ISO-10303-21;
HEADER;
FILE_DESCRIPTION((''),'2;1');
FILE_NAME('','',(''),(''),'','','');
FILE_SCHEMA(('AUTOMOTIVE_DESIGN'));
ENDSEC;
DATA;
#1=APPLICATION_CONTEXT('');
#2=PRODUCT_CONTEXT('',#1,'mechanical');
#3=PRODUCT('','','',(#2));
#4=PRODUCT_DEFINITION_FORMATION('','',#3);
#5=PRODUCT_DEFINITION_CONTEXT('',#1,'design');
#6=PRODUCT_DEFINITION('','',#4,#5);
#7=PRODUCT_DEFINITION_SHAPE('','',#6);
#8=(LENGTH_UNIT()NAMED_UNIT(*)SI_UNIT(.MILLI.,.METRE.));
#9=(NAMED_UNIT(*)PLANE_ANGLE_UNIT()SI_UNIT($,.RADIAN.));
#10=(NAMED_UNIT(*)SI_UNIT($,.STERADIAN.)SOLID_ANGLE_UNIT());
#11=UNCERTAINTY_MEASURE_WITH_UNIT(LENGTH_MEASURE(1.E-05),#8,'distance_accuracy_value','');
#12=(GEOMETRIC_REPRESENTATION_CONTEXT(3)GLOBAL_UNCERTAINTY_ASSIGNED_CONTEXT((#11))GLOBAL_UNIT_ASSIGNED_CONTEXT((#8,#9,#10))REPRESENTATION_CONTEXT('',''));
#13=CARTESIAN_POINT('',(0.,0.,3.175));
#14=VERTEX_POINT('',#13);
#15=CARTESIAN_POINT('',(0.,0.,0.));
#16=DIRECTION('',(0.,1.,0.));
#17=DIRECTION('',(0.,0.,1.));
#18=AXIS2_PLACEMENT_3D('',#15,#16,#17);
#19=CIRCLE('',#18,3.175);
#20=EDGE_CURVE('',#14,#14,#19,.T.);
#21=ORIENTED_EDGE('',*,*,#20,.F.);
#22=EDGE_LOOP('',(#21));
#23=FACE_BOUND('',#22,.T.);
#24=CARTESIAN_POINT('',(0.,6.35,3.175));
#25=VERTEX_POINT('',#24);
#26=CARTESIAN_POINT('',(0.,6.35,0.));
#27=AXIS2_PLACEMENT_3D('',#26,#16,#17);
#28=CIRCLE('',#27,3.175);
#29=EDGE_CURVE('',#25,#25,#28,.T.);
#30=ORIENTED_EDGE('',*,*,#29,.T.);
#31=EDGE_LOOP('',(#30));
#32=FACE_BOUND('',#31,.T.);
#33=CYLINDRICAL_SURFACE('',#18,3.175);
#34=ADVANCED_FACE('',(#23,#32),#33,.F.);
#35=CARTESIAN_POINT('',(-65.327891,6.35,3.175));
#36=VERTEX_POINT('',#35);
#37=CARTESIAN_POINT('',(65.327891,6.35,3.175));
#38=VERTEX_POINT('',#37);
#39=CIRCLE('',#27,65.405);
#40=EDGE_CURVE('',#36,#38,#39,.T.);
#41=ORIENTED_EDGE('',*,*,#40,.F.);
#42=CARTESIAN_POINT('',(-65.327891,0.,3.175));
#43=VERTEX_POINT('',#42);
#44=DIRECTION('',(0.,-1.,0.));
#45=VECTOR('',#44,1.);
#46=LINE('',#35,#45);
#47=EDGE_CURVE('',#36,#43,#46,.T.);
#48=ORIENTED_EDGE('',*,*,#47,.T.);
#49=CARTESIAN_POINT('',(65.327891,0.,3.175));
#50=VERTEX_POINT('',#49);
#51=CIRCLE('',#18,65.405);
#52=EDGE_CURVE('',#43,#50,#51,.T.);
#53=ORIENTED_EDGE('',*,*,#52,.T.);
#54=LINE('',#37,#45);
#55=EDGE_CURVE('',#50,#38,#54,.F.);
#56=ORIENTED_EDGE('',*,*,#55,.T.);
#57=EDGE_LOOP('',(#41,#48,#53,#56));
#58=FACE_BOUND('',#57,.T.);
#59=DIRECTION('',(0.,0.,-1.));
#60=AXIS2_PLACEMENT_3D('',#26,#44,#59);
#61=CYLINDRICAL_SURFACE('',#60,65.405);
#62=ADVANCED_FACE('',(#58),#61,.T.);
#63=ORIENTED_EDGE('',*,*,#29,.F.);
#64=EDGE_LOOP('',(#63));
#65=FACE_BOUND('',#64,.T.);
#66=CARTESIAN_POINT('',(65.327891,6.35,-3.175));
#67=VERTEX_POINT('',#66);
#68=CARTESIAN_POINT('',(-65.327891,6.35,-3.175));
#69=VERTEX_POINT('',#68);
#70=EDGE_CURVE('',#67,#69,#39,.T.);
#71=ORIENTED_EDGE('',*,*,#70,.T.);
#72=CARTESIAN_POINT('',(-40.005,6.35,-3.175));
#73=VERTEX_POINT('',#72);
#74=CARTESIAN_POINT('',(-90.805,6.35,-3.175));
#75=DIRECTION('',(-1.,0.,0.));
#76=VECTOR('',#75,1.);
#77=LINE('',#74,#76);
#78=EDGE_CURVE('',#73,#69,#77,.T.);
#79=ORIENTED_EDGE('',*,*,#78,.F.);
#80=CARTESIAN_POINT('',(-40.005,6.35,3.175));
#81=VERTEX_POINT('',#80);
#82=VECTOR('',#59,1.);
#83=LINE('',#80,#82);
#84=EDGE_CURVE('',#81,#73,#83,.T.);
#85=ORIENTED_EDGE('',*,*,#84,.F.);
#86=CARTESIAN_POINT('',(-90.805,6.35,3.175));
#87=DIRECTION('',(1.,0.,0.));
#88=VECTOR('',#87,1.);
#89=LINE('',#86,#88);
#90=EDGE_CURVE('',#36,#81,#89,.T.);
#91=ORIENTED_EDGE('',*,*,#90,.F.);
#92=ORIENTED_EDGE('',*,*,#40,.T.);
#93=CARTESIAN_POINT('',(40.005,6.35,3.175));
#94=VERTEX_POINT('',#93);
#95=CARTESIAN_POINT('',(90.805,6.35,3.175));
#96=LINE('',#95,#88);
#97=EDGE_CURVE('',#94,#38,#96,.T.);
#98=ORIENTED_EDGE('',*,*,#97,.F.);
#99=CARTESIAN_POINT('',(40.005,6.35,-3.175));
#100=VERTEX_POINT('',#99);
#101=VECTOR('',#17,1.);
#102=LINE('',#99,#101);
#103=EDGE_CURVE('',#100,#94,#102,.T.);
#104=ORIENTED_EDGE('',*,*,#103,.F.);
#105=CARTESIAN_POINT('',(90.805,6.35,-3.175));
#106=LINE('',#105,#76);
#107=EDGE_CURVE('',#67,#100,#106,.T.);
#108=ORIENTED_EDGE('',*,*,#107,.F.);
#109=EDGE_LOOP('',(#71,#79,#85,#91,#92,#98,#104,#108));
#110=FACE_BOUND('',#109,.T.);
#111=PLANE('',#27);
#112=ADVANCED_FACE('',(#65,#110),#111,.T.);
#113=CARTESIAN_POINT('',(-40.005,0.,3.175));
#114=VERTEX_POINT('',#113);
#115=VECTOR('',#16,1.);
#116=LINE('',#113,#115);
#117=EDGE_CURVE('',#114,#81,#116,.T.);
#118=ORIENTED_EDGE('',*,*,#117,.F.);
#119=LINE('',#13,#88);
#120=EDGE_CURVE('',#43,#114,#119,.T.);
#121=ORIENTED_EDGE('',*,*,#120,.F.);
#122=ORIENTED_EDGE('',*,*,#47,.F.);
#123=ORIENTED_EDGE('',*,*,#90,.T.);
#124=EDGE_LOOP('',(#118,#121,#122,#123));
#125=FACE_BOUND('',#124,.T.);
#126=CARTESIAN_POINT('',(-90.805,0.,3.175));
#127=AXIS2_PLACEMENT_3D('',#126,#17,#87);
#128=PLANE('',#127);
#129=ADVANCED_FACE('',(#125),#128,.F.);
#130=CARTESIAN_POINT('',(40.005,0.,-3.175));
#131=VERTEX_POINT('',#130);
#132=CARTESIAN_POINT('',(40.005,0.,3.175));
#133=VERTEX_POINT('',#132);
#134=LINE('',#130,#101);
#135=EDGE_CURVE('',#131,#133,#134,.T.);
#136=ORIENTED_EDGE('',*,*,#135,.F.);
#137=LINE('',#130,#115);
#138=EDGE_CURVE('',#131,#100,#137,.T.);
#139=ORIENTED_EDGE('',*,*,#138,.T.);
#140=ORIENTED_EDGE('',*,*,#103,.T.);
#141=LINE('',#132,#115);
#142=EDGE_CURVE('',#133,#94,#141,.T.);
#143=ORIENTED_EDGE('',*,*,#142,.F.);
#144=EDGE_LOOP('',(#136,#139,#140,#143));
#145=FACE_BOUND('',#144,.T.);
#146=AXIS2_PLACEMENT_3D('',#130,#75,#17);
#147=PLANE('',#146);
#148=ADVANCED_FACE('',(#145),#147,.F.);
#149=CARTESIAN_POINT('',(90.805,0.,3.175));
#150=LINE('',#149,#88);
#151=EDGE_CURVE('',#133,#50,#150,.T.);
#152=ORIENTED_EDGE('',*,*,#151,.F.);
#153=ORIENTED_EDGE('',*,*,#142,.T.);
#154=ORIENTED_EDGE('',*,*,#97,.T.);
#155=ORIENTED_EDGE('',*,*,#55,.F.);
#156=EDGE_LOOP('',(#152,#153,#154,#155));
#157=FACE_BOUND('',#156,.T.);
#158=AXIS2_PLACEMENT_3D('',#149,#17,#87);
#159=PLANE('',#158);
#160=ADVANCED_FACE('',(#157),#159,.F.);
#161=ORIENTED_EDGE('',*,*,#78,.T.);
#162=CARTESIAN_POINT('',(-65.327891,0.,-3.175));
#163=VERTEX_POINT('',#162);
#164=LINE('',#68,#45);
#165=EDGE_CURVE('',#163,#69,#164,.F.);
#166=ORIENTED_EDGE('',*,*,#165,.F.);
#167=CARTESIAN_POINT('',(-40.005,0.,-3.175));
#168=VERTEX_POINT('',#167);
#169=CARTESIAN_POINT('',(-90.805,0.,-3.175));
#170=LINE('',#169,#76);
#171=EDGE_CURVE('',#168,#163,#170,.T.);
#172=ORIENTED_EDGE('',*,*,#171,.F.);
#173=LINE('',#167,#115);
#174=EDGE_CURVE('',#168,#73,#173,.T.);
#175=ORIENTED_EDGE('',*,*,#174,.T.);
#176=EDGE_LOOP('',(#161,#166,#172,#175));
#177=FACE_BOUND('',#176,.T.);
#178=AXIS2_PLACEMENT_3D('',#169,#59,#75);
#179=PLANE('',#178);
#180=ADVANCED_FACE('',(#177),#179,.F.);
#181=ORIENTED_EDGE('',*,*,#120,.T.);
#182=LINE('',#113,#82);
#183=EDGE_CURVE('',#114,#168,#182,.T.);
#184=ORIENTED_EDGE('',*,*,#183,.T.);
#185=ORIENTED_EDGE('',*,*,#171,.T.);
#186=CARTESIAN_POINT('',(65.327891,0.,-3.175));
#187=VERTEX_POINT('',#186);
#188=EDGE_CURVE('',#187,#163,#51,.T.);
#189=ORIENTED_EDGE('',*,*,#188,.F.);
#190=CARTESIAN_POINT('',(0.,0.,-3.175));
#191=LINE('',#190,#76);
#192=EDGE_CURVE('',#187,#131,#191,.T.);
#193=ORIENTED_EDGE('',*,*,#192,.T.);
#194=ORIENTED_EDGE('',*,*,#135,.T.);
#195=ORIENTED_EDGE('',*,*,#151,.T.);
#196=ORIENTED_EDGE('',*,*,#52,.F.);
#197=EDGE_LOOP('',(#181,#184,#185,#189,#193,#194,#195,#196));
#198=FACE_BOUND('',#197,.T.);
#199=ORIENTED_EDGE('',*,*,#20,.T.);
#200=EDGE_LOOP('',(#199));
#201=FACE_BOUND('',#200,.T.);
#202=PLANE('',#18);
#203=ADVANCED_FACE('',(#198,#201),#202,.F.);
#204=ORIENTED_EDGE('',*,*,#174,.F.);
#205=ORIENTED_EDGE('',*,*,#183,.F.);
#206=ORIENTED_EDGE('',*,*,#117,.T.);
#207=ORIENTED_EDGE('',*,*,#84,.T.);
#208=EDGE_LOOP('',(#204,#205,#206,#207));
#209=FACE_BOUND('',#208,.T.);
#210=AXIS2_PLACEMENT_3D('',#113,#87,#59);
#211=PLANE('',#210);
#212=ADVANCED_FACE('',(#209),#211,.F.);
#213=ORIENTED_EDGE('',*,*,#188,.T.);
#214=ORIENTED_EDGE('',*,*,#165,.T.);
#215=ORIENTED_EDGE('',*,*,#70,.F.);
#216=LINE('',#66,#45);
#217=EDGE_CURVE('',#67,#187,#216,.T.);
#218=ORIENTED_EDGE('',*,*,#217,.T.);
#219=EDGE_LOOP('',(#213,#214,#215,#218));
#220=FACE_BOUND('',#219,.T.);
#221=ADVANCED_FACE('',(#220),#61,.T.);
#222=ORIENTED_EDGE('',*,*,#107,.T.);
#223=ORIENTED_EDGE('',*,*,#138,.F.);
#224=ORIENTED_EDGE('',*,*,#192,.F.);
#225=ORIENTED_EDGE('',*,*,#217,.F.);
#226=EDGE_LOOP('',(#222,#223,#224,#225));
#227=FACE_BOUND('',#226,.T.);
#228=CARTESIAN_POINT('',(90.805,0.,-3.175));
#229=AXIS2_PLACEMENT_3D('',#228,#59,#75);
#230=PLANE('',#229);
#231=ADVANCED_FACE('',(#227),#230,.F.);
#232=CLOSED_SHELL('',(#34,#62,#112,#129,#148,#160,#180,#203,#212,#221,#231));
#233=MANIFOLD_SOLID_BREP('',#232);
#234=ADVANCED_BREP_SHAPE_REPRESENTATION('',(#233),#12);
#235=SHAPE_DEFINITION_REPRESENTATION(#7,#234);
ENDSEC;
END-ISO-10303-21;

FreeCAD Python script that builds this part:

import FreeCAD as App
import Part
import Sketcher

V = App.Vector
Q = App.Units.Quantity

doc = App.newDocument("Part")
body = doc.addObject("PartDesign::Body", "Body")

sketch1 = body.newObject("Sketcher::SketchObject", "Sketch")
sketch1.AttachmentSupport = (doc.getObject("XZ_Plane"), [""])
sketch1.MapMode = "FlatFace"
sketch1.addGeometry(Part.Circle(V(0, 0, 0), V(0, 0, 1), 65.405), False)
sketch1.addConstraint([
    Sketcher.Constraint("Coincident", 0, 3, -1, 1),
    Sketcher.Constraint("Diameter", 0, Q("5.15 in")),
])
pad1 = body.newObject("PartDesign::Pad", "Pad")
pad1.Profile = sketch1
pad1.Length = Q("0.25 in")
pad1.Reversed = True

sketch2 = body.newObject("Sketcher::SketchObject", "Sketch001")
sketch2.AttachmentSupport = (doc.getObject("XZ_Plane"), [""])
sketch2.MapMode = "FlatFace"
sketch2.AttachmentOffset = App.Placement(V(0, 0, -0.25 * 25.4), App.Rotation())
sketch2.addGeometry([
    Part.LineSegment(V(-90.805, -3.175, 0), V(-90.805, 3.175, 0)),
    Part.LineSegment(V(-90.805, 3.175, 0), V(-40.005, 3.175, 0)),
    Part.LineSegment(V(-40.005, 3.175, 0), V(-40.005, -3.175, 0)),
    Part.LineSegment(V(-40.005, -3.175, 0), V(-90.805, -3.175, 0)),
    Part.LineSegment(V(40.005, -3.175, 0), V(40.005, 3.175, 0)),
    Part.LineSegment(V(40.005, 3.175, 0), V(90.805, 3.175, 0)),
    Part.LineSegment(V(90.805, 3.175, 0), V(90.805, -3.175, 0)),
    Part.LineSegment(V(90.805, -3.175, 0), V(40.005, -3.175, 0)),
], False)
sketch2.addConstraint([
    Sketcher.Constraint("Coincident", 0, 2, 1, 1),
    Sketcher.Constraint("Coincident", 1, 2, 2, 1),
    Sketcher.Constraint("Coincident", 2, 2, 3, 1),
    Sketcher.Constraint("Coincident", 3, 2, 0, 1),
    Sketcher.Constraint("Coincident", 4, 2, 5, 1),
    Sketcher.Constraint("Coincident", 5, 2, 6, 1),
    Sketcher.Constraint("Coincident", 6, 2, 7, 1),
    Sketcher.Constraint("Coincident", 7, 2, 4, 1),
    Sketcher.Constraint("Vertical", 0),
    Sketcher.Constraint("Horizontal", 1),
    Sketcher.Constraint("Vertical", 2),
    Sketcher.Constraint("Horizontal", 3),
    Sketcher.Constraint("Vertical", 4),
    Sketcher.Constraint("Horizontal", 5),
    Sketcher.Constraint("Vertical", 6),
    Sketcher.Constraint("Horizontal", 7),
    Sketcher.Constraint("Symmetric", 2, 2, 4, 2, -1, 1),
    Sketcher.Constraint("Symmetric", 0, 2, 6, 2, -1, 1),
    Sketcher.Constraint("Horizontal", 1, 2, 4, 2),
    Sketcher.Constraint("DistanceX", 1, 1, 1, 2, Q("2 in")),
    Sketcher.Constraint("DistanceY", 0, 1, 0, 2, Q("0.25 in")),
    Sketcher.Constraint("DistanceX", 1, 2, 4, 2, Q("3.15 in")),
])
pocket1 = body.newObject("PartDesign::Pocket", "Pocket")
pocket1.Profile = sketch2
pocket1.Length = Q("0.25 in")
pocket1.Reversed = True

sketch3 = body.newObject("Sketcher::SketchObject", "Sketch002")
sketch3.AttachmentSupport = (doc.getObject("XZ_Plane"), [""])
sketch3.MapMode = "FlatFace"
sketch3.AttachmentOffset = App.Placement(V(0, 0, -0.25 * 25.4), App.Rotation())
sketch3.addGeometry(Part.Circle(V(0, 0, 0), V(0, 0, 1), 3.175), False)
sketch3.addConstraint([
    Sketcher.Constraint("Coincident", 0, 3, -1, 1),
    Sketcher.Constraint("Diameter", 0, Q("0.25 in")),
])
pocket2 = body.newObject("PartDesign::Pocket", "Pocket001")
pocket2.Profile = sketch3
pocket2.Type = "ThroughAll"
pocket2.Reversed = True

doc.recompute()
